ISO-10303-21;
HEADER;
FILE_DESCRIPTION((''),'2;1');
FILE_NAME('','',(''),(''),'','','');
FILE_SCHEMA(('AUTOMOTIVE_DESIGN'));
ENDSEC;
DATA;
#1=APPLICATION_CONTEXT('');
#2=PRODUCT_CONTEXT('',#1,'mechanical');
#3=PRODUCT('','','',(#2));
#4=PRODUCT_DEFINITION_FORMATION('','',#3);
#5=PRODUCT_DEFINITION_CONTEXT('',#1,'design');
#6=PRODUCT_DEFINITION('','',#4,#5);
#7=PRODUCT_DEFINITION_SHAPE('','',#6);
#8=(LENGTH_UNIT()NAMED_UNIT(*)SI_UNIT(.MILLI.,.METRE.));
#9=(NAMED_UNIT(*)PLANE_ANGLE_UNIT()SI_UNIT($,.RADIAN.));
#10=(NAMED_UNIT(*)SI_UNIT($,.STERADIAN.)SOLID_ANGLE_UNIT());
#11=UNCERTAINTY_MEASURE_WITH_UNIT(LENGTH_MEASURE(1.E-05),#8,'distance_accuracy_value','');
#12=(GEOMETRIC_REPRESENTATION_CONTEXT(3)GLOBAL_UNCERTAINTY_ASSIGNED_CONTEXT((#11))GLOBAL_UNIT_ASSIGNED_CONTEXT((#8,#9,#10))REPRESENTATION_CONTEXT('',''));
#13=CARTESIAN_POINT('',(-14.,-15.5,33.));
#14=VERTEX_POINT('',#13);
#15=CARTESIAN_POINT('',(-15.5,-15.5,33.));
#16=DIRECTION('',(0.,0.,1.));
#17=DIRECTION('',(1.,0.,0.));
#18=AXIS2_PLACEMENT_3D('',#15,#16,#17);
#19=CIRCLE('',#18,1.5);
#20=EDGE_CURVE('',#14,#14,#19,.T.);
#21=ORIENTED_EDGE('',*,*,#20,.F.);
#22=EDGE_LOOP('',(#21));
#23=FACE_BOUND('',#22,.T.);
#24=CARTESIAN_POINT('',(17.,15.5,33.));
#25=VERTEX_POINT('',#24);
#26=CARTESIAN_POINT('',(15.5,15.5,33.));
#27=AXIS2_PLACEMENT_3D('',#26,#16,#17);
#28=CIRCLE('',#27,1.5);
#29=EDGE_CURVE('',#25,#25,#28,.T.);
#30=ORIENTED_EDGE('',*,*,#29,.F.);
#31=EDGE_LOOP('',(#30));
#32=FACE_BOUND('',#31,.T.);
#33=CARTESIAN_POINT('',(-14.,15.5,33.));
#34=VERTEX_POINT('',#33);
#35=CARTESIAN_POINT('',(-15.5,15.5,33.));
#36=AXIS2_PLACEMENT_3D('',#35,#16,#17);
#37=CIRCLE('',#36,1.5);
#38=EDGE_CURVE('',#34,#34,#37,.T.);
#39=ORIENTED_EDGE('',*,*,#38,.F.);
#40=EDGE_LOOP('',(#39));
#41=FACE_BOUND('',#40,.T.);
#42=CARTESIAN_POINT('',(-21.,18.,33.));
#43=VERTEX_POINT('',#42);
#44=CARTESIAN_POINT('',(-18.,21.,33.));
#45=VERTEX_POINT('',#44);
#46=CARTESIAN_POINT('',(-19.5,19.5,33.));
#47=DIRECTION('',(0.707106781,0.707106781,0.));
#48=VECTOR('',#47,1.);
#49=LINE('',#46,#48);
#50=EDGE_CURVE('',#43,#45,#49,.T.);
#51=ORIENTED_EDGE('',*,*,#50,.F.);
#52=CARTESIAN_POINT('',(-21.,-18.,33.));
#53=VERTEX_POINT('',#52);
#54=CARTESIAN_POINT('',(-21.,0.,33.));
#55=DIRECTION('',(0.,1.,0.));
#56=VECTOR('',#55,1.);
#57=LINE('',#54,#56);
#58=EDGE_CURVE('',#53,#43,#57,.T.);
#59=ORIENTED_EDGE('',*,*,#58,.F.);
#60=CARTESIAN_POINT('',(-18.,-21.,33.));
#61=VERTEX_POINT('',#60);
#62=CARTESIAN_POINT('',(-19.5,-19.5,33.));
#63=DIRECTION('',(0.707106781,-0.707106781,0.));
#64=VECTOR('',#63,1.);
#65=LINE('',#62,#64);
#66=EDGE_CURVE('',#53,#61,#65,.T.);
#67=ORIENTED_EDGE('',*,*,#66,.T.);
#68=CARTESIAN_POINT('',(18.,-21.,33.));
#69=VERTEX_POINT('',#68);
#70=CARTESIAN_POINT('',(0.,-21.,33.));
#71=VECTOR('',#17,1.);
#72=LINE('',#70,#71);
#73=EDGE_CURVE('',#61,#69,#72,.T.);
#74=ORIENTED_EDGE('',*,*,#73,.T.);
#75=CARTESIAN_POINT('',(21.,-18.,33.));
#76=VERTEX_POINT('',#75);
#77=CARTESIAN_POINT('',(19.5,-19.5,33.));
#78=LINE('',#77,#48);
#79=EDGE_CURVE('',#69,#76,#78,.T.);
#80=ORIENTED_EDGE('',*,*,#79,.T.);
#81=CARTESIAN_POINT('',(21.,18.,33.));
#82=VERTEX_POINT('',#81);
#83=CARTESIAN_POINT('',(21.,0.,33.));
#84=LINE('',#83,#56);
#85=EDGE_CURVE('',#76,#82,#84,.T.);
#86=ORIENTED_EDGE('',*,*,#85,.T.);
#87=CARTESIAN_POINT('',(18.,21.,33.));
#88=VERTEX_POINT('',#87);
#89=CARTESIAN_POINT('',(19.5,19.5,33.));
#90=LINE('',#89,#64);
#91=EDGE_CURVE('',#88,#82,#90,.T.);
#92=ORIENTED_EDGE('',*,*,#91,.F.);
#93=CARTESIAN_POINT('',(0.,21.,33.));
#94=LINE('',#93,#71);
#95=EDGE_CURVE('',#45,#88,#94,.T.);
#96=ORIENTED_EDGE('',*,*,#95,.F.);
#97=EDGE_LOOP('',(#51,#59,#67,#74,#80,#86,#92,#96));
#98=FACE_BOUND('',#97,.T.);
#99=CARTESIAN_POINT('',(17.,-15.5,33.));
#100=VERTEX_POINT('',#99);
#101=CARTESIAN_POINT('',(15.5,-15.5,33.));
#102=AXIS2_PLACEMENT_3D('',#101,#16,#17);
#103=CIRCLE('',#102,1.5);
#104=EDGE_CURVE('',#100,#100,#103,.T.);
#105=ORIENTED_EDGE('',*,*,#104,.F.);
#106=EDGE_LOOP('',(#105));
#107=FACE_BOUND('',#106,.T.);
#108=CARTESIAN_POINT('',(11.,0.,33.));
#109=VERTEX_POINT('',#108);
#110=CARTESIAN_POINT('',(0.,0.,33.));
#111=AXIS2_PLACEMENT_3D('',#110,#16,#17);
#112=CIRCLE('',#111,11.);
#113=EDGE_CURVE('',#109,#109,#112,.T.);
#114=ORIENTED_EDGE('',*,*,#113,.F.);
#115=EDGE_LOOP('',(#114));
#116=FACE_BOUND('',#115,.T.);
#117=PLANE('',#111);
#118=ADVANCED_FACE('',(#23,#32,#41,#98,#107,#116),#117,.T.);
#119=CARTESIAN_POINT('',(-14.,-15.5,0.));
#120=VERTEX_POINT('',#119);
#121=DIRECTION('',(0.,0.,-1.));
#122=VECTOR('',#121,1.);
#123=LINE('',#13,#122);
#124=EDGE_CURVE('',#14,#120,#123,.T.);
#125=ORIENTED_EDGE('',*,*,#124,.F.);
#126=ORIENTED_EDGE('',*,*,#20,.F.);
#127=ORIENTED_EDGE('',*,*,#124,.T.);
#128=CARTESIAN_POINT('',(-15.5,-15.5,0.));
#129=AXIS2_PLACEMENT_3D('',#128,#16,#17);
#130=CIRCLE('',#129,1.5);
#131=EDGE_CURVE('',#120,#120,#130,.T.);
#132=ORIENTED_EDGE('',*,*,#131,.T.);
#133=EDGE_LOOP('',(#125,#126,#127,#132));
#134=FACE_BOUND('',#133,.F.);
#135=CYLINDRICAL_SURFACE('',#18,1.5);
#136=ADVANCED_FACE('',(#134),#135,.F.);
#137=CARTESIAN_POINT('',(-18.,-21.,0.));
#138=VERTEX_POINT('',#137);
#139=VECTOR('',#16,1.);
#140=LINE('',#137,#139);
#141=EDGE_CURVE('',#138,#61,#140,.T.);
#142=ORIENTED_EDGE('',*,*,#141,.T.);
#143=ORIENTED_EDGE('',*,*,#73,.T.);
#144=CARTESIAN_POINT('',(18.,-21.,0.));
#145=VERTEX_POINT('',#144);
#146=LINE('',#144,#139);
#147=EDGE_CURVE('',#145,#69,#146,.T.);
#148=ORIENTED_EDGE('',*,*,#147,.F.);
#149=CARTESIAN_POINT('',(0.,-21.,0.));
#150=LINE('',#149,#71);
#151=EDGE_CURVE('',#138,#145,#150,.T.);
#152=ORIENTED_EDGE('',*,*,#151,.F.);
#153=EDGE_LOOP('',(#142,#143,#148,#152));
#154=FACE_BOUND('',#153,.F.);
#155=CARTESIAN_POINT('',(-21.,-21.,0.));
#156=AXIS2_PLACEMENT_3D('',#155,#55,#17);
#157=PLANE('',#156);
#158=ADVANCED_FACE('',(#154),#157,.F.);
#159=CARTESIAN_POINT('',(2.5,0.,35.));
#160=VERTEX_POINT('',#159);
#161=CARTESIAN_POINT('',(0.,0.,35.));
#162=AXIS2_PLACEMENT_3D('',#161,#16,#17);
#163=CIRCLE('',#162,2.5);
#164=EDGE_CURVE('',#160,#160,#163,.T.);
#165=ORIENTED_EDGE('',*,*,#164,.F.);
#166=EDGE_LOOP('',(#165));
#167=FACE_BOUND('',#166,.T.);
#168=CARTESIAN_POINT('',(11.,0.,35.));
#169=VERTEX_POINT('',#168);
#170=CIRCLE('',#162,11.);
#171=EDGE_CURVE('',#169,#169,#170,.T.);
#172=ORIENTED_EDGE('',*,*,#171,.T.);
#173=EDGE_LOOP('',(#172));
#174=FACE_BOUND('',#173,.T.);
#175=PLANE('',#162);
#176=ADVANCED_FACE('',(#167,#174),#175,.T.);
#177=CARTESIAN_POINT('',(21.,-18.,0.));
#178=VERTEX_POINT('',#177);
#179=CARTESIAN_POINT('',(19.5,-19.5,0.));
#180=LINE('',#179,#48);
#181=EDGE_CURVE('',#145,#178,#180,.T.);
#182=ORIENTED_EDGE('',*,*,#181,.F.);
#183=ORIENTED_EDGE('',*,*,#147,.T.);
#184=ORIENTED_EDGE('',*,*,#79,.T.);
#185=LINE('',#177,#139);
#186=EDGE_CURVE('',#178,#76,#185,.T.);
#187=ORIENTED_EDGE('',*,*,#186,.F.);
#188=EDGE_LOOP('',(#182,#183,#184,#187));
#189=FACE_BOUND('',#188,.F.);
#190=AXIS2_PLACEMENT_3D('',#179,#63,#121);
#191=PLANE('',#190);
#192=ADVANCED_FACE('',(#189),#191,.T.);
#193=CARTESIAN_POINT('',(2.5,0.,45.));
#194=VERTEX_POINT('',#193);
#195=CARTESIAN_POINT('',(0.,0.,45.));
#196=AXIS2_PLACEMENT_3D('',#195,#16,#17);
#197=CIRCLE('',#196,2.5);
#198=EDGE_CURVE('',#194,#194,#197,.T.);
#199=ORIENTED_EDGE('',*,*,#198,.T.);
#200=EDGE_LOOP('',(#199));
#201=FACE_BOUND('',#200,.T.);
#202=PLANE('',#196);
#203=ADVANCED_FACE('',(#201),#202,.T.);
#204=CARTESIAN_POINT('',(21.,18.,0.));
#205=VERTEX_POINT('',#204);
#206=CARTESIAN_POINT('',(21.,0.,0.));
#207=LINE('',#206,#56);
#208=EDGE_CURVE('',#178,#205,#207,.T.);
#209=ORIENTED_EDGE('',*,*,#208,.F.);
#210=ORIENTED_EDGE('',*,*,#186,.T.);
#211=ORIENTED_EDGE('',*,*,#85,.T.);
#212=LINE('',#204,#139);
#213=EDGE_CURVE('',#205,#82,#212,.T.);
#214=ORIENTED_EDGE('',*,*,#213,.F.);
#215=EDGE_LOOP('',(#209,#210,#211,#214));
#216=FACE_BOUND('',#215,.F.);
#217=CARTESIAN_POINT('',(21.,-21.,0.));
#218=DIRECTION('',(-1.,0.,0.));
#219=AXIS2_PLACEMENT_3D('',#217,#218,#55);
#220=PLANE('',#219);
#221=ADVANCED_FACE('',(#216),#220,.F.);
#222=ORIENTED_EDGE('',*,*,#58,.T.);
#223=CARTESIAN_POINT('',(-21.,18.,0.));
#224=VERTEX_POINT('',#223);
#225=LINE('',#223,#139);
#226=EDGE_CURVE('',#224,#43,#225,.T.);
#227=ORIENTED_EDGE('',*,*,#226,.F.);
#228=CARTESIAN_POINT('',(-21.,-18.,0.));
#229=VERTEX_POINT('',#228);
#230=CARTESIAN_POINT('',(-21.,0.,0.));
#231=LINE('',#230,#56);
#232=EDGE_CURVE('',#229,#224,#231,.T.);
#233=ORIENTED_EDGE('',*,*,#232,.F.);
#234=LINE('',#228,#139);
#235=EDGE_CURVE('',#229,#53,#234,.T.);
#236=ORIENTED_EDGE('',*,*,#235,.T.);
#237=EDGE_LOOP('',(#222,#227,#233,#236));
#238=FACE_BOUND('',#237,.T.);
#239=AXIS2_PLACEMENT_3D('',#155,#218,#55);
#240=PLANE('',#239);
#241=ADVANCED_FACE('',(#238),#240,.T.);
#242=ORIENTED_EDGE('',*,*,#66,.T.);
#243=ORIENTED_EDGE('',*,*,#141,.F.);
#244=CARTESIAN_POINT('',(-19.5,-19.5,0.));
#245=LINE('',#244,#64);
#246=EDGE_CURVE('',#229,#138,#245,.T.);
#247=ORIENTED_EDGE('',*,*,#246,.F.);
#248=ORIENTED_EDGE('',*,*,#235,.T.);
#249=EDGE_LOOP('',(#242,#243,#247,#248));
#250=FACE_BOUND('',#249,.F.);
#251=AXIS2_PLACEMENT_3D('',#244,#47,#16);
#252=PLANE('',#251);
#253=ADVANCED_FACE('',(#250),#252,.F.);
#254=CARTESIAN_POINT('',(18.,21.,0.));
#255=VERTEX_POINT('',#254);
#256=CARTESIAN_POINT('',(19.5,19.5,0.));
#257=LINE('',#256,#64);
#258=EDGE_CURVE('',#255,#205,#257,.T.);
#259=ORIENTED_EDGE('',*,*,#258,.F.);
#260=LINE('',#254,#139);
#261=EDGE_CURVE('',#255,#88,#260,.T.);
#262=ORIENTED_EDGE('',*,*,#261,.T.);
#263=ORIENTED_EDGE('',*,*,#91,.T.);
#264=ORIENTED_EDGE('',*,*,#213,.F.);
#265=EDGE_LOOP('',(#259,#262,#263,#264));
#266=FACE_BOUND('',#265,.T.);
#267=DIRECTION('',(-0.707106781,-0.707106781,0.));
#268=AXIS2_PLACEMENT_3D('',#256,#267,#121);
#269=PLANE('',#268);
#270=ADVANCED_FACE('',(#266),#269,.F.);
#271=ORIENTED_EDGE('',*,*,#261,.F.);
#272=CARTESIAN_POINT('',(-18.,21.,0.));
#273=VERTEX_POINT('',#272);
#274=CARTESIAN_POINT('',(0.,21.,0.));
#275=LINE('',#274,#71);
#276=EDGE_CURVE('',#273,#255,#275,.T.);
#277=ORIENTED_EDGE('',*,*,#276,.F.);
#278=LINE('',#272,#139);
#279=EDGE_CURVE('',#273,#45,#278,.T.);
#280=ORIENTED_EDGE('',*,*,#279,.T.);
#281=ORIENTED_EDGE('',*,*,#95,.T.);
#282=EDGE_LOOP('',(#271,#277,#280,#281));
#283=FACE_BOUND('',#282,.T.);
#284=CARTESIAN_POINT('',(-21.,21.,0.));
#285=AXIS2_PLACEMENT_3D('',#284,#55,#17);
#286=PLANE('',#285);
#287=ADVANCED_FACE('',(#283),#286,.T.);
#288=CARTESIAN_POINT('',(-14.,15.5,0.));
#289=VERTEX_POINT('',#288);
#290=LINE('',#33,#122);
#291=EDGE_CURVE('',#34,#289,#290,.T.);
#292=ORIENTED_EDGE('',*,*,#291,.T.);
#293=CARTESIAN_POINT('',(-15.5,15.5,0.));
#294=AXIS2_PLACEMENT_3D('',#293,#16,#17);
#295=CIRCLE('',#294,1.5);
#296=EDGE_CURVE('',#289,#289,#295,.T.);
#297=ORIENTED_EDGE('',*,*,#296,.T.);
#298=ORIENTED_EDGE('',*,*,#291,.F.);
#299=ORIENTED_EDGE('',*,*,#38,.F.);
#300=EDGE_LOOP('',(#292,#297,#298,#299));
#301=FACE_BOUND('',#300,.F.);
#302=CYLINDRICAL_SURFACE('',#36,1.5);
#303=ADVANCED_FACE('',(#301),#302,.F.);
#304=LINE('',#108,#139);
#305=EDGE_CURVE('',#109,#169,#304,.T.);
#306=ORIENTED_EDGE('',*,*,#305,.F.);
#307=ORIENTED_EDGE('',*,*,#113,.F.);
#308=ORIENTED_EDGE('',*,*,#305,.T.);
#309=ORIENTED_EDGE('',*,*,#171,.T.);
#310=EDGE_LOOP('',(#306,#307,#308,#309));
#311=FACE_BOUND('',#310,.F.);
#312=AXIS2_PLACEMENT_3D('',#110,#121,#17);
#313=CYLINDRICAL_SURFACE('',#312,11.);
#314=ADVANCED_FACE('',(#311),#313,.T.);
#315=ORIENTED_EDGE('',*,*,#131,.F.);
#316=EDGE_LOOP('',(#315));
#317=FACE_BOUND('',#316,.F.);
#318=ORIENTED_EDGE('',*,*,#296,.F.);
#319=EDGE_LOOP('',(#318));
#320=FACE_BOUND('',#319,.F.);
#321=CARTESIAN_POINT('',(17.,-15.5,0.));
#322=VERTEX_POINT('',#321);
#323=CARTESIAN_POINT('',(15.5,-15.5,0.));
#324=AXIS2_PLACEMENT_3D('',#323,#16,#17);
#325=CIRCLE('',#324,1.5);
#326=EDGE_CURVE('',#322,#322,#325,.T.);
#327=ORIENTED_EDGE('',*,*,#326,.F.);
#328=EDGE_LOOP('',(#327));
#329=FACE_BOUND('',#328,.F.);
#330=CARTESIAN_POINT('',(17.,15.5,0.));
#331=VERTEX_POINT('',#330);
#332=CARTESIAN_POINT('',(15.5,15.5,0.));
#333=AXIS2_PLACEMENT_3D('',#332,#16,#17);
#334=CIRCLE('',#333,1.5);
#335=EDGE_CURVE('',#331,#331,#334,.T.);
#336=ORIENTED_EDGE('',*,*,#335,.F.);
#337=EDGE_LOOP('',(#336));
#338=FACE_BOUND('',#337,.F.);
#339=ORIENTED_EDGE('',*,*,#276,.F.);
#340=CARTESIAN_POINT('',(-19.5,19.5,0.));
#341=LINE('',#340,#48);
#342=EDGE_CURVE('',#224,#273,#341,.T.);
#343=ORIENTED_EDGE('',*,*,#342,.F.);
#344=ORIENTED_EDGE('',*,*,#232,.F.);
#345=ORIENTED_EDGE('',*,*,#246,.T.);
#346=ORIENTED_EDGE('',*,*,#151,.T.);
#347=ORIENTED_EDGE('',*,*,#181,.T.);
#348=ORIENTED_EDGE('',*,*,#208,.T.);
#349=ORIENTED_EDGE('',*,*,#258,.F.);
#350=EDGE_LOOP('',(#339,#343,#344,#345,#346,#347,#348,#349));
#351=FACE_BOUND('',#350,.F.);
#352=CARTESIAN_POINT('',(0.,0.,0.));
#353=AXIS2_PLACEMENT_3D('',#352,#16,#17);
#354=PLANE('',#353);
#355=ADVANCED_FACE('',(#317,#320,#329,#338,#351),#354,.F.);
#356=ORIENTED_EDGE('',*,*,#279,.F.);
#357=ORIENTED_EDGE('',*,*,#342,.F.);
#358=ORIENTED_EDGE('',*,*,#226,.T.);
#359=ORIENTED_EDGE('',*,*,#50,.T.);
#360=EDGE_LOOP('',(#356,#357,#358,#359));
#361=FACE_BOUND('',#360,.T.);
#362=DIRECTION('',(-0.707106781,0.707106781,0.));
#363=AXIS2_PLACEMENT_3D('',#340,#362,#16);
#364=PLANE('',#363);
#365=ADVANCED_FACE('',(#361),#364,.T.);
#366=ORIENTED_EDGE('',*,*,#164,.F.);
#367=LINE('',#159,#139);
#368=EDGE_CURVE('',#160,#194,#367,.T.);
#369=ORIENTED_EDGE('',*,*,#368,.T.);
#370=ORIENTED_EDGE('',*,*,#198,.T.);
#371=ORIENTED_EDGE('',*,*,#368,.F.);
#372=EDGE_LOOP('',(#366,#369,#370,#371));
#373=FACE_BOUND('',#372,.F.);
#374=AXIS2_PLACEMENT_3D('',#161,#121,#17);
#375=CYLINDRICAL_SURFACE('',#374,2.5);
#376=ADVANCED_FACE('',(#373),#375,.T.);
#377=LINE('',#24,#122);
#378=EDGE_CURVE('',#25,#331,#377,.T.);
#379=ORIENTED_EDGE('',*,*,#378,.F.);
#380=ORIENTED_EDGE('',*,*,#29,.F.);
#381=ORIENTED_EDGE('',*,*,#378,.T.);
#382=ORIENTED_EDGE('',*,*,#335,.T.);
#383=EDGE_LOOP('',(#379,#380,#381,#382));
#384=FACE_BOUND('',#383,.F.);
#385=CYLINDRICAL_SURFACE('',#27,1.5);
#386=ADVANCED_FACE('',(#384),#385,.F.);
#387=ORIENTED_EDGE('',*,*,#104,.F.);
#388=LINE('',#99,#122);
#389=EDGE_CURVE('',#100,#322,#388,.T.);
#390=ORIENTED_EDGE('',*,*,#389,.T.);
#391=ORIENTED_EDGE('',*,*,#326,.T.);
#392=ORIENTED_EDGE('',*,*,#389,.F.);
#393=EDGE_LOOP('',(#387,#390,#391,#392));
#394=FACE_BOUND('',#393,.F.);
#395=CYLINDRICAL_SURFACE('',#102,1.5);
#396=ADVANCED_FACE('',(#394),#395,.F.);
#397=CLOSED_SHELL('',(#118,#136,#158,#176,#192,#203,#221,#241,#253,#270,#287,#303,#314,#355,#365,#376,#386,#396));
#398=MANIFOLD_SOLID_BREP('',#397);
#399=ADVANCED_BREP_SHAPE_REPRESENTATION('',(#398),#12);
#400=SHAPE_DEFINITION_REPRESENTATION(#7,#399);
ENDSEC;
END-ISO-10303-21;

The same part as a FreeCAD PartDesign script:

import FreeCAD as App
import Part
import Sketcher
Q = App.Units.Quantity


def edges_at(feature, points):
    """Names of the edges that pass closest to the given points."""
    edges = feature.Shape.Edges
    near = lambda p: min(range(len(edges)), key=lambda i: edges[i].distToShape(Part.Vertex(*p))[0])
    return sorted({f"Edge{near(p) + 1}" for p in points})


def add_polygon(sketch, points):
    """Adds a closed chain of lines whose ends are joined by coincident constraints."""
    first, n = sketch.GeometryCount, len(points)
    for a, b in zip(points, points[1:] + points[:1]):
        sketch.addGeometry(Part.LineSegment(App.Vector(*a, 0), App.Vector(*b, 0)), False)
    for i in range(n):
        sketch.addConstraint(Sketcher.Constraint("Coincident", first + i, 2, first + (i + 1) % n, 1))

doc = App.newDocument("Part")
body = doc.addObject("PartDesign::Body", "Body")

# Sketch on XY plane
sketch1 = doc.addObject("Sketcher::SketchObject", "Sketch")
body.addObject(sketch1)
sketch1.AttachmentSupport = (doc.XY_Plane, [""])
sketch1.MapMode = "FlatFace"
add_polygon(sketch1, [(-21, 21), (-21, -21), (21, -21), (21, 21)])  # lines 0-3
sketch1.addConstraint(Sketcher.Constraint("Vertical", 0))
sketch1.addConstraint(Sketcher.Constraint("Horizontal", 1))
sketch1.addConstraint(Sketcher.Constraint("Vertical", 2))
sketch1.addConstraint(Sketcher.Constraint("Horizontal", 3))
sketch1.addConstraint(Sketcher.Constraint("Symmetric", 0, 2, 2, 2, -1, 1))
sketch1.addConstraint(Sketcher.Constraint("Equal", 3, 0))
sketch1.addConstraint(Sketcher.Constraint("DistanceX", 1, 1, 1, 2, Q("42 mm")))
pad1 = doc.addObject("PartDesign::Pad", "Pad")
body.addObject(pad1)
pad1.Profile = sketch1
pad1.Length = 33

# Sketch on XY plane
sketch2 = doc.addObject("Sketcher::SketchObject", "Sketch001")
body.addObject(sketch2)
sketch2.AttachmentSupport = (doc.XY_Plane, [""])
sketch2.MapMode = "FlatFace"
sketch2.AttachmentOffset = App.Placement(App.Vector(0, 0, 33), App.Rotation())
sketch2.addGeometry(Part.Circle(App.Vector(0, 0, 0), App.Vector(0, 0, 1), 11), False)
sketch2.addConstraint(Sketcher.Constraint("Coincident", 0, 3, -1, 1))
sketch2.addConstraint(Sketcher.Constraint("Diameter", 0, Q("22 mm")))
pad2 = doc.addObject("PartDesign::Pad", "Pad001")
body.addObject(pad2)
pad2.Profile = sketch2
pad2.Length = 2

# Sketch on XY plane
sketch3 = doc.addObject("Sketcher::SketchObject", "Sketch002")
body.addObject(sketch3)
sketch3.AttachmentSupport = (doc.XY_Plane, [""])
sketch3.MapMode = "FlatFace"
sketch3.AttachmentOffset = App.Placement(App.Vector(0, 0, 35), App.Rotation())
sketch3.addGeometry(Part.Circle(App.Vector(0, 0, 0), App.Vector(0, 0, 1), 2.5), False)
sketch3.addConstraint(Sketcher.Constraint("Coincident", 0, 3, -1, 1))
sketch3.addConstraint(Sketcher.Constraint("Diameter", 0, Q("5 mm")))
pad3 = doc.addObject("PartDesign::Pad", "Pad002")
body.addObject(pad3)
pad3.Profile = sketch3
pad3.Length = 10

# Sketch on XY plane
sketch4 = doc.addObject("Sketcher::SketchObject", "Sketch003")
body.addObject(sketch4)
sketch4.AttachmentSupport = (doc.XY_Plane, [""])
sketch4.MapMode = "FlatFace"
sketch4.AttachmentOffset = App.Placement(App.Vector(0, 0, 33), App.Rotation())
sketch4.addGeometry(Part.Circle(App.Vector(-15.5, 15.5, 0), App.Vector(0, 0, 1), 1.5), False)
sketch4.addGeometry(Part.Circle(App.Vector(15.5, 15.5, 0), App.Vector(0, 0, 1), 1.5), False)
sketch4.addGeometry(Part.Circle(App.Vector(15.5, -15.5, 0), App.Vector(0, 0, 1), 1.5), False)
sketch4.addGeometry(Part.Circle(App.Vector(-15.5, -15.5, 0), App.Vector(0, 0, 1), 1.5), False)
sketch4.addConstraint(Sketcher.Constraint("Equal", 0, 1))
sketch4.addConstraint(Sketcher.Constraint("Equal", 1, 2))
sketch4.addConstraint(Sketcher.Constraint("Equal", 2, 3))
sketch4.addConstraint(Sketcher.Constraint("Symmetric", 0, 3, 2, 3, -1, 1))
sketch4.addConstraint(Sketcher.Constraint("Symmetric", 1, 3, 3, 3, -1, 1))
sketch4.addConstraint(Sketcher.Constraint("Symmetric", 0, 3, 1, 3, -2))
sketch4.addConstraint(Sketcher.Constraint("Diameter", 0, Q("3 mm")))
sketch4.addConstraint(Sketcher.Constraint("DistanceX", 0, 3, 1, 3, Q("31 mm")))
sketch4.addConstraint(Sketcher.Constraint("DistanceY", 2, 3, 1, 3, Q("31 mm")))
pocket1 = doc.addObject("PartDesign::Pocket", "Pocket")
body.addObject(pocket1)
pocket1.Profile = sketch4
pocket1.Type = "ThroughAll"
doc.recompute()

chamfer = doc.addObject("PartDesign::Chamfer", "Chamfer")
body.addObject(chamfer)
chamfer.Base = (pocket1, edges_at(pocket1, [
    (-21, 21, 16.5),
    (21, 21, 16.5),
    (21, -21, 16.5),
    (-21, -21, 16.5),
]))
chamfer.Size = 3

doc.recompute()
